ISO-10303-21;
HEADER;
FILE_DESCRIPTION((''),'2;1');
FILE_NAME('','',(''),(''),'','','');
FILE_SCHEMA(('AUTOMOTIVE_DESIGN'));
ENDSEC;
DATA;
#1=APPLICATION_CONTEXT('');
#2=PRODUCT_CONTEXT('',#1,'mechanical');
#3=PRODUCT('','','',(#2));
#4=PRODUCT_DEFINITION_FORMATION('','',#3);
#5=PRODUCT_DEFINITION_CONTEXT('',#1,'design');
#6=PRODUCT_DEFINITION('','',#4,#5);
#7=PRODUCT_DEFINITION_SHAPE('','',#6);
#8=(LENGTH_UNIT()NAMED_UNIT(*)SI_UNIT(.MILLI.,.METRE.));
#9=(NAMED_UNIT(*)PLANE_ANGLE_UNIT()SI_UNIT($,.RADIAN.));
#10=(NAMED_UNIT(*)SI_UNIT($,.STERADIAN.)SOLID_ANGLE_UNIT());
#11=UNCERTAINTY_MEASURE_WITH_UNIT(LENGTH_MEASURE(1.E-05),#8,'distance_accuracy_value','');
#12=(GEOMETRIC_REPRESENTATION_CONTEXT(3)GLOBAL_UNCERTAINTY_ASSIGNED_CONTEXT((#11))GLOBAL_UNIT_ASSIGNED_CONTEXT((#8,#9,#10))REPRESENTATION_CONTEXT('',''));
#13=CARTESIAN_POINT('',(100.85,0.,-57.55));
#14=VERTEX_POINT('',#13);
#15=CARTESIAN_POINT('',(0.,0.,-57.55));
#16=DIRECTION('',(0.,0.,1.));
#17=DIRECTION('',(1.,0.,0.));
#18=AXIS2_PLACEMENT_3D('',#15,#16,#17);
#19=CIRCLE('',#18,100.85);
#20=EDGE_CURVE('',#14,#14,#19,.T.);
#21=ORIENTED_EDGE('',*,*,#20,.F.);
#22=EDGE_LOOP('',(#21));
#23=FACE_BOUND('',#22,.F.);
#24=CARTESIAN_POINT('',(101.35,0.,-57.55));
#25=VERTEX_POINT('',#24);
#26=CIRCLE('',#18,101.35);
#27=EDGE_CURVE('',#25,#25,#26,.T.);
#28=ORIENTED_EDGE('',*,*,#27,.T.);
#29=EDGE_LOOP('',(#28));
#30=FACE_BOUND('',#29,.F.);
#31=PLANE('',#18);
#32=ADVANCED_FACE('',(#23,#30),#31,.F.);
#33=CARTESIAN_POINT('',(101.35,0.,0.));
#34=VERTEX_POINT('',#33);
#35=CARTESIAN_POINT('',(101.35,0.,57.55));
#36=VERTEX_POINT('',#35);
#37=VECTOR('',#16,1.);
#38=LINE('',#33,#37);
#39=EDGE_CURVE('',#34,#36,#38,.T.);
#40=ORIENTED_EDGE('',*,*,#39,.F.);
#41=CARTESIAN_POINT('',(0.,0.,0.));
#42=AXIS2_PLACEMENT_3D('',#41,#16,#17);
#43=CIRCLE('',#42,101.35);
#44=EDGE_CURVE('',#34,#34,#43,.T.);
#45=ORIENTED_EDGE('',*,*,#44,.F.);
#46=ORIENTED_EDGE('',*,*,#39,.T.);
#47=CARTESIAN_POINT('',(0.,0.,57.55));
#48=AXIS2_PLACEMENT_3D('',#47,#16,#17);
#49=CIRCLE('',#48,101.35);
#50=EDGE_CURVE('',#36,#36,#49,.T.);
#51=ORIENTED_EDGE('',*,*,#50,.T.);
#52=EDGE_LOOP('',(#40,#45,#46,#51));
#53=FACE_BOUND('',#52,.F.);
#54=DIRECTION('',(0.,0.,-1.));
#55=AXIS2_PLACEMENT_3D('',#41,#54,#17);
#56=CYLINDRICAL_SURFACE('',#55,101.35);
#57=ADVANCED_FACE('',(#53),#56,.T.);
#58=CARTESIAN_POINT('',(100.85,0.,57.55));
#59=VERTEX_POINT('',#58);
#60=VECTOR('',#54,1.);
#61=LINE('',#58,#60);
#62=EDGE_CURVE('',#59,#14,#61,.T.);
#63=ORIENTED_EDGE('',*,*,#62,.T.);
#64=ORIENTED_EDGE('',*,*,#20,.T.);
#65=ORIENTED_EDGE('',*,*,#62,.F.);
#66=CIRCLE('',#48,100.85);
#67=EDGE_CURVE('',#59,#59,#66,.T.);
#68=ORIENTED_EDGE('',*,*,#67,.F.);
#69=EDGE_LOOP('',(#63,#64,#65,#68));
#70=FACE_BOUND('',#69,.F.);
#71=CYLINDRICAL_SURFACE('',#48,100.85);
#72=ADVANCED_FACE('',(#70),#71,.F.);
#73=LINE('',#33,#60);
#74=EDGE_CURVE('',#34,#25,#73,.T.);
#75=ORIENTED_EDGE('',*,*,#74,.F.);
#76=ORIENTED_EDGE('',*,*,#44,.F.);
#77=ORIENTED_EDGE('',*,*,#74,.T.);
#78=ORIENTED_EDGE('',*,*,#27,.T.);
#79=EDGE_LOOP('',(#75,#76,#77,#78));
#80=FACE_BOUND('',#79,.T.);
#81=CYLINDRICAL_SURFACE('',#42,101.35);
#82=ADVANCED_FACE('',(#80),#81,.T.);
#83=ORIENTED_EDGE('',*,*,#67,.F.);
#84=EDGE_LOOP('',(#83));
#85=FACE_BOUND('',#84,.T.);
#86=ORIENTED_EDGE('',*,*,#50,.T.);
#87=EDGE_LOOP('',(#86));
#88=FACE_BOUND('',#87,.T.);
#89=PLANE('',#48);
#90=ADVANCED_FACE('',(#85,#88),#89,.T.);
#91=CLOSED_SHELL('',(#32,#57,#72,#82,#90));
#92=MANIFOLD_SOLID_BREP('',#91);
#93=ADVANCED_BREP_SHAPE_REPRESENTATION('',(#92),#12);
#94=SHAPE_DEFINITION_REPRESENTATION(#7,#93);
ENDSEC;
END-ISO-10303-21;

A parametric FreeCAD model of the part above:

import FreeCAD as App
import Part
import Sketcher

doc = App.newDocument("Part")
params = doc.addObject("Spreadsheet::Sheet", "Params")
for row, (alias, value) in enumerate([
    ("sketch1_diameter", "202.7 mm"),
    ("pad1_length", "115.1 mm"),
    ("sketch2_diameter", "201.7 mm"),
], start=1):
    params.set(f"A{row}", alias)
    params.set(f"B{row}", "=" + value)
    params.setAlias(f"B{row}", alias)

body = doc.addObject("PartDesign::Body", "Body")

# Sketch on XY plane
sketch1 = body.newObject("Sketcher::SketchObject", "Sketch")
sketch1.AttachmentSupport = (doc.getObject("XY_Plane"), [""])
sketch1.MapMode = "FlatFace"
sketch1.addGeometry(Part.Circle(App.Vector(0, 0, 0), App.Vector(0, 0, 1), 101), False)
sketch1.addConstraint(Sketcher.Constraint("Coincident", 0, 3, -1, 1))
sketch1.addConstraint(Sketcher.Constraint("Diameter", 0, 202.7))
sketch1.setExpression("Constraints[1]", "Params.sketch1_diameter")
pad1 = body.newObject("PartDesign::Pad", "Pad")
pad1.Profile = sketch1
pad1.setExpression("Length", "Params.pad1_length")
pad1.Midplane = True

# Sketch on XY plane
sketch2 = body.newObject("Sketcher::SketchObject", "Sketch001")
sketch2.AttachmentSupport = (doc.getObject("XY_Plane"), [""])
sketch2.MapMode = "FlatFace"
sketch2.AttachmentOffset = App.Placement(App.Vector(0, 0, 57.55), App.Rotation())
sketch2.addGeometry(Part.Circle(App.Vector(0, 0, 0), App.Vector(0, 0, 1), 101), False)
sketch2.addConstraint(Sketcher.Constraint("Coincident", 0, 3, -1, 1))
sketch2.addConstraint(Sketcher.Constraint("Diameter", 0, 201.7))
sketch2.setExpression("Constraints[1]", "Params.sketch2_diameter")
pocket1 = body.newObject("PartDesign::Pocket", "Pocket")
pocket1.Profile = sketch2
pocket1.Type = "ThroughAll"

doc.recompute()
